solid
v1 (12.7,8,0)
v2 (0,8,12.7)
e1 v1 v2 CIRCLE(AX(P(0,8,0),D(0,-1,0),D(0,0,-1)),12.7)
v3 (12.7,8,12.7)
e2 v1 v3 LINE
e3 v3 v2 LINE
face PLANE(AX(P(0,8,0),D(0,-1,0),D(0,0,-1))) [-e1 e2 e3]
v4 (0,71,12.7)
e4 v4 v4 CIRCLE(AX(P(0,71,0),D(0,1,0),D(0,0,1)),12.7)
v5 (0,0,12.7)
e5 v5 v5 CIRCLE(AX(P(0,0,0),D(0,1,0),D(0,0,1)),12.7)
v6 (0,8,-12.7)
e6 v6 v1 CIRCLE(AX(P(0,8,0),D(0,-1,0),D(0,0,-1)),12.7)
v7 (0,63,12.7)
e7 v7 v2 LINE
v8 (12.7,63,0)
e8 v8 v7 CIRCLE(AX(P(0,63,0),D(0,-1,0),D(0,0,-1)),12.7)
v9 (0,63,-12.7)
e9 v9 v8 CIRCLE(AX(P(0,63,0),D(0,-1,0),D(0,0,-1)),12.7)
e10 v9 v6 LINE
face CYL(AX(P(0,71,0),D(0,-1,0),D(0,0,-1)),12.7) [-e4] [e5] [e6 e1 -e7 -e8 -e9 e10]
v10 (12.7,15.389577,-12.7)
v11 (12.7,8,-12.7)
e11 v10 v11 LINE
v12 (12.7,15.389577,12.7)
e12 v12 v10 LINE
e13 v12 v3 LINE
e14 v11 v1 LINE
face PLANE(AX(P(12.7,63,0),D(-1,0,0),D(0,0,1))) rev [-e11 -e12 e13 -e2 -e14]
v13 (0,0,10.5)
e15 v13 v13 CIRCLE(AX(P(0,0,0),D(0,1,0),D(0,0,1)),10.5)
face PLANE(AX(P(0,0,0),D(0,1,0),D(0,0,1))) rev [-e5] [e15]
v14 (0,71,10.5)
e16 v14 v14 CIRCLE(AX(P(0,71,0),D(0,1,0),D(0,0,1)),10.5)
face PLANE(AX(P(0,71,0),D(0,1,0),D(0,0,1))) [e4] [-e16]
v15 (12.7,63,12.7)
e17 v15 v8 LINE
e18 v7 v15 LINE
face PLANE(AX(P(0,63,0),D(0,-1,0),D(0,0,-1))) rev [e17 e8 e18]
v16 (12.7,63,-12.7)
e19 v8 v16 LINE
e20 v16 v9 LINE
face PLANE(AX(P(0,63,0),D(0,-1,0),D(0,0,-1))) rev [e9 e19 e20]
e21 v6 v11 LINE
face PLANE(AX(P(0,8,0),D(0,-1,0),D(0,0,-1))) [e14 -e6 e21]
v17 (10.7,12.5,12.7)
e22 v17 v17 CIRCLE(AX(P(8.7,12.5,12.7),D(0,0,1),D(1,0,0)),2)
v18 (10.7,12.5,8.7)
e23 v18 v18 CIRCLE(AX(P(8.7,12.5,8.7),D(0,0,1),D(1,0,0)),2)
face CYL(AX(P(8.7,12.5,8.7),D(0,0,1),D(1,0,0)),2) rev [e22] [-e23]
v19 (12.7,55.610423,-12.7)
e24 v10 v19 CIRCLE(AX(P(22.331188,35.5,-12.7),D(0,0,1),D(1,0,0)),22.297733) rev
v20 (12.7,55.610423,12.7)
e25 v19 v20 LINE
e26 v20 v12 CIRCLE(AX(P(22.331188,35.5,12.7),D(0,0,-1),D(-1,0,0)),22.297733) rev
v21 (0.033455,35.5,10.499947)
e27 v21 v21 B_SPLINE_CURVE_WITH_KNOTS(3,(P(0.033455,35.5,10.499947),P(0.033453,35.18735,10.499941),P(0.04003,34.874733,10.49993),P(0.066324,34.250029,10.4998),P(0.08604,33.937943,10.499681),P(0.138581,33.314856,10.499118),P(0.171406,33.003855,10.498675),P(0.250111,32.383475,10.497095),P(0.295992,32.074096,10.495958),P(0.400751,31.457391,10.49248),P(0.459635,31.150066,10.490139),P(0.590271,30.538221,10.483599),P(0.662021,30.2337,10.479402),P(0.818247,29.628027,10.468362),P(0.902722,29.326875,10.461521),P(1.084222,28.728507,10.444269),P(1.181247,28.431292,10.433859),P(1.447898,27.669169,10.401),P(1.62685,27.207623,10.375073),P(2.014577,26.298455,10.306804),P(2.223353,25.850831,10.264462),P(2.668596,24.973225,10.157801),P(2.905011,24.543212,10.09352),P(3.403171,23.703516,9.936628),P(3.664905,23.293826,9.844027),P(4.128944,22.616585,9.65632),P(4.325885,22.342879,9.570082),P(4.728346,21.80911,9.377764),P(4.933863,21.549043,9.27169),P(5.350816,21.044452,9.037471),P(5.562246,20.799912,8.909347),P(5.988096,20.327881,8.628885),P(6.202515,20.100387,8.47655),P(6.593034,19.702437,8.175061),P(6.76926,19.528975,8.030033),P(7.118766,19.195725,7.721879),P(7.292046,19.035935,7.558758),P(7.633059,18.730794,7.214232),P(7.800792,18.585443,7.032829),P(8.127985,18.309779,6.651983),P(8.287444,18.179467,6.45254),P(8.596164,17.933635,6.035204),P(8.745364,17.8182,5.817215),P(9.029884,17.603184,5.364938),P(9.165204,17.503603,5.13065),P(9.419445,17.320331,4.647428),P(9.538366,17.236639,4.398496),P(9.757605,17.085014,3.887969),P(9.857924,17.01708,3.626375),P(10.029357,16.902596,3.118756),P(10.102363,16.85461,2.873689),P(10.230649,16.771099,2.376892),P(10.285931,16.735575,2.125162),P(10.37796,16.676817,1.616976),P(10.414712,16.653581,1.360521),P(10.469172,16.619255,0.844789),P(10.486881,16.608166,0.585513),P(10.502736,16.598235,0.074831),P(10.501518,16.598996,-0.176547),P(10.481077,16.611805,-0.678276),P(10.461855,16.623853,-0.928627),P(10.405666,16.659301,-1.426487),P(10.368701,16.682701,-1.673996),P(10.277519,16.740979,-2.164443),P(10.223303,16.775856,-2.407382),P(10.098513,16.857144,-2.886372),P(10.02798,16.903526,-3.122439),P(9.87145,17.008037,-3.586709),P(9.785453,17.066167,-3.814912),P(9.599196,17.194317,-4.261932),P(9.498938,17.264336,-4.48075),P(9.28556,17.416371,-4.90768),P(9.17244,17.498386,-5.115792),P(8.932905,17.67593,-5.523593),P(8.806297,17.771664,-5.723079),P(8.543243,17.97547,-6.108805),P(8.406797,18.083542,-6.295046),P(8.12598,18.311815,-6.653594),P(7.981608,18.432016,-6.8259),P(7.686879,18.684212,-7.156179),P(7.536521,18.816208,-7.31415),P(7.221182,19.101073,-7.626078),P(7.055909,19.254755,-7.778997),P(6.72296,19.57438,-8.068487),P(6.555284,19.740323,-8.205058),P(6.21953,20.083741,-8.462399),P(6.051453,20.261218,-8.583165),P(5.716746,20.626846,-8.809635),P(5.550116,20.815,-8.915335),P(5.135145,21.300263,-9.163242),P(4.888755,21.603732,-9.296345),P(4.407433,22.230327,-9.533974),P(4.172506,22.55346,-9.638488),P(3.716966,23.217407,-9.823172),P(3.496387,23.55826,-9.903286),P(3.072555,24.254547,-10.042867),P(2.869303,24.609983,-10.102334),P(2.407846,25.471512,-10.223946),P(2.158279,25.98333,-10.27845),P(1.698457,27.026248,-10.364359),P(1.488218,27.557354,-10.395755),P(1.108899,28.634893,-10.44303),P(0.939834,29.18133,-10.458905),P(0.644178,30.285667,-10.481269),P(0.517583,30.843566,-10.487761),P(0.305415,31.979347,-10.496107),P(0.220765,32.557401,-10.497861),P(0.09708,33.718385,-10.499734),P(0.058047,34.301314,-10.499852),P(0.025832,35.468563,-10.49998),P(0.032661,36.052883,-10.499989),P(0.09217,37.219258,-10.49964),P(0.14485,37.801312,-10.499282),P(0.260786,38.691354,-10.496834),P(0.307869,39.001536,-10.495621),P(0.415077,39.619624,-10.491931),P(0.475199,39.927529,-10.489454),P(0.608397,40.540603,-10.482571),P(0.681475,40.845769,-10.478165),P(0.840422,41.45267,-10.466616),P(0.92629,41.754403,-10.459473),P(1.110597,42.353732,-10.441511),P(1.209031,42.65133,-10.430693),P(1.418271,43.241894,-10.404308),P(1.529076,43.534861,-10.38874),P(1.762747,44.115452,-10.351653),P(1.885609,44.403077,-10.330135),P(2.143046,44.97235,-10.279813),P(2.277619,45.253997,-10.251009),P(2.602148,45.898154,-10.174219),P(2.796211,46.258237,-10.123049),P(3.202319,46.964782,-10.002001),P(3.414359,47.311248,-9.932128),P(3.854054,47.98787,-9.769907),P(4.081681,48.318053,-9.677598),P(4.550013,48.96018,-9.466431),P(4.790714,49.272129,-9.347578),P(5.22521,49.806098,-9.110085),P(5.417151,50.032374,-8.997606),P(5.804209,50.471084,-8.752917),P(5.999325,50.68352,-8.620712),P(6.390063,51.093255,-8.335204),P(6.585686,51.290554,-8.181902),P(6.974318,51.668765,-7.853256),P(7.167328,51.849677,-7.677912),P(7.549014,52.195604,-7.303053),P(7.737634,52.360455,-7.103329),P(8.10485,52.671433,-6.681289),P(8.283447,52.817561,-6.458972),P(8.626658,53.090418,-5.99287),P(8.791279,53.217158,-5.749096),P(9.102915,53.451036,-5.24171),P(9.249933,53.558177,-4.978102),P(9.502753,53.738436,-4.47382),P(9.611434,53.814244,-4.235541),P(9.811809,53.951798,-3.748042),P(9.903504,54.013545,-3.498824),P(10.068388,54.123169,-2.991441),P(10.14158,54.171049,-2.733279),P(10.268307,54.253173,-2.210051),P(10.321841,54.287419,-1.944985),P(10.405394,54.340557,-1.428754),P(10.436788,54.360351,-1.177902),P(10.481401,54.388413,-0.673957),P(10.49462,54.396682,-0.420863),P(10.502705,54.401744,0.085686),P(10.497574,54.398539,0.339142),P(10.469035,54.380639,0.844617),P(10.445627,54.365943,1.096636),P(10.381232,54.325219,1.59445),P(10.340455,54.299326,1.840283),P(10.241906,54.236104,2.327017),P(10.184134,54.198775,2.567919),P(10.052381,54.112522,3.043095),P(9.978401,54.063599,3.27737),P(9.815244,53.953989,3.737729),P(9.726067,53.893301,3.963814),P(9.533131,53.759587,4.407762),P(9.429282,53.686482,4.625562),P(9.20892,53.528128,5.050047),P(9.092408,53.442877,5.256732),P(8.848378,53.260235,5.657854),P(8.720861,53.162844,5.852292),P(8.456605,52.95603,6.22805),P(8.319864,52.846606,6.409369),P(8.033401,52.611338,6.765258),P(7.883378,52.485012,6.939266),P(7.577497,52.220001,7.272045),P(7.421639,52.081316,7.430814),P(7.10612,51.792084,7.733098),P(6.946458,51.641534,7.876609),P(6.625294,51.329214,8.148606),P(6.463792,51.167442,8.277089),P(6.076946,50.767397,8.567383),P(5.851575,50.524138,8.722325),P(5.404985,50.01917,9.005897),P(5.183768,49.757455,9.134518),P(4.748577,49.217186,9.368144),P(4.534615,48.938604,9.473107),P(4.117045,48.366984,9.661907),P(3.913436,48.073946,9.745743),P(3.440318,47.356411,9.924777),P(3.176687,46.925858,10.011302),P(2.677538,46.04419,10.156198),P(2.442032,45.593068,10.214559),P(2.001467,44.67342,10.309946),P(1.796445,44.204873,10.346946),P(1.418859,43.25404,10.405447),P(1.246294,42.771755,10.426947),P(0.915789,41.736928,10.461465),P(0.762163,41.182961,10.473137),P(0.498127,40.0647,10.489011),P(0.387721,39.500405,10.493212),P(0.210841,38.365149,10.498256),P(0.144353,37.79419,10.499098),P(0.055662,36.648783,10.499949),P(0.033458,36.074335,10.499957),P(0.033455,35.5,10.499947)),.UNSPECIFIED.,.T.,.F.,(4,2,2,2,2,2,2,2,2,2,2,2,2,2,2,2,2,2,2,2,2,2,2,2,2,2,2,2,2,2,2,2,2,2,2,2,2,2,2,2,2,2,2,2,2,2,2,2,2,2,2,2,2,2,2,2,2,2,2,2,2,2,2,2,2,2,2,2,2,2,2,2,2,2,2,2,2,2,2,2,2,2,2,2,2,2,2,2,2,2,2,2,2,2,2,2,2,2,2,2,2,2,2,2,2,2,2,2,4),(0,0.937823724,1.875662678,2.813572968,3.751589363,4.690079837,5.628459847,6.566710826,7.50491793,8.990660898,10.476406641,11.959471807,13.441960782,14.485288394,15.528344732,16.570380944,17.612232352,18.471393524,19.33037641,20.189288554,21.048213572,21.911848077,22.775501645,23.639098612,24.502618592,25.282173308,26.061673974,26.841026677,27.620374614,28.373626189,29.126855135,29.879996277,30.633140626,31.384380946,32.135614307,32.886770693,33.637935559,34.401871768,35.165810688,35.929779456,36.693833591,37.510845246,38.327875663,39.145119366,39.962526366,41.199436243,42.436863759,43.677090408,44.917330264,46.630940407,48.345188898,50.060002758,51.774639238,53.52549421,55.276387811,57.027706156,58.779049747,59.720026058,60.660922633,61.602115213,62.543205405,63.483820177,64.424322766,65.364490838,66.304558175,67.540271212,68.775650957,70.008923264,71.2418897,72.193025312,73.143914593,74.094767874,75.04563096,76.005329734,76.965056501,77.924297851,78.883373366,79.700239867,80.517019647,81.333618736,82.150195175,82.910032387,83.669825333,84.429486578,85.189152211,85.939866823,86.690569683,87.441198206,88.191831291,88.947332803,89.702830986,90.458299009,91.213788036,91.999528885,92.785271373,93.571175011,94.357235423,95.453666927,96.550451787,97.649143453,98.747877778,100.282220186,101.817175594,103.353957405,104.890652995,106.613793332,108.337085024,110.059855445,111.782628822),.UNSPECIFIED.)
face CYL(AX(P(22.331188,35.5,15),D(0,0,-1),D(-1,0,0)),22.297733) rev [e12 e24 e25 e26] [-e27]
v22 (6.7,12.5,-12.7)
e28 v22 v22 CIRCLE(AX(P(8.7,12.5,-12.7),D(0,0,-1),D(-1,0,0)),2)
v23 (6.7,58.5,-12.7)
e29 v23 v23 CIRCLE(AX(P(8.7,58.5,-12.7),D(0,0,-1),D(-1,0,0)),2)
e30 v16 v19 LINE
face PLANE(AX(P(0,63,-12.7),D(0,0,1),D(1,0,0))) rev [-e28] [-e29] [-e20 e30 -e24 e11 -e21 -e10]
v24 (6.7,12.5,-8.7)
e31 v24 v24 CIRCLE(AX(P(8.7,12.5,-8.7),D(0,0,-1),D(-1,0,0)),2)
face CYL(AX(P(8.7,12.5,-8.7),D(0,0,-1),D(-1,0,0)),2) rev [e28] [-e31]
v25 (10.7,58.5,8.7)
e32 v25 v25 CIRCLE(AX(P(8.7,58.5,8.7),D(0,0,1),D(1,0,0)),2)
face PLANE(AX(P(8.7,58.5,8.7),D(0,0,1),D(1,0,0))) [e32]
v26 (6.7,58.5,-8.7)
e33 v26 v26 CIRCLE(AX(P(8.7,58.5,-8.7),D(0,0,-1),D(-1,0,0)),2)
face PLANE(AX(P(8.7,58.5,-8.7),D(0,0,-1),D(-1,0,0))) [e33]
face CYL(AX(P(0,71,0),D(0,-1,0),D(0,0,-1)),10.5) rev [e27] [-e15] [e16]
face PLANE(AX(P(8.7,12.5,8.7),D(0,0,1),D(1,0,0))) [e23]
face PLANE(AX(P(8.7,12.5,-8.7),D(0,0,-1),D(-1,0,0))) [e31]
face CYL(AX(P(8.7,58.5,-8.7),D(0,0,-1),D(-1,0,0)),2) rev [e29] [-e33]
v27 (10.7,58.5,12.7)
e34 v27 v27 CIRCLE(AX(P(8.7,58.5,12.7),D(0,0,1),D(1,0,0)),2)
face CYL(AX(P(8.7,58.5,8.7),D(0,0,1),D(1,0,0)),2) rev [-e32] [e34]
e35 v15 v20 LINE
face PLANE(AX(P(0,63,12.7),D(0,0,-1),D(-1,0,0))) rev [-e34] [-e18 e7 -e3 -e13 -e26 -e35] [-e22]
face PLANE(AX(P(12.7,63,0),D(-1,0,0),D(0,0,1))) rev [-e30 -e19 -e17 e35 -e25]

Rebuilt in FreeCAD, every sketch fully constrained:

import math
import FreeCAD as App
import Part
import Sketcher

V = App.Vector
Q = App.Units.Quantity

doc = App.newDocument("Part")
body = doc.addObject("PartDesign::Body", "Body")

sketch1 = body.newObject("Sketcher::SketchObject", "Sketch")
sketch1.AttachmentSupport = (doc.getObject("XZ_Plane"), [""])
sketch1.MapMode = "FlatFace"
sketch1.addGeometry([
    Part.Circle(V(0, 0, 0), V(0, 0, 1), 13),
    Part.Circle(V(0, 0, 0), V(0, 0, 1), 10),
], False)
sketch1.addConstraint([
    Sketcher.Constraint("Coincident", 0, 3, -1, 1),
    Sketcher.Constraint("Coincident", 1, 3, -1, 1),
    Sketcher.Constraint("Diameter", 1, Q("21 mm")),
    Sketcher.Constraint("Diameter", 0, Q("25.4 mm")),
])
pad1 = body.newObject("PartDesign::Pad", "Pad")
pad1.Profile = sketch1
pad1.Length = 71
pad1.Reversed = True

sketch2 = body.newObject("Sketcher::SketchObject", "Sketch001")
sketch2.AttachmentSupport = (doc.getObject("XZ_Plane"), [""])
sketch2.MapMode = "FlatFace"
sketch2.addGeometry([
    Part.LineSegment(V(13, 13, 0), V(0, 13, 0)),
    Part.ArcOfCircle(Part.Circle(V(0, 0, 0), V(0, 0, 1), 13), math.radians(0), math.radians(90)),
    Part.LineSegment(V(13, 0, 0), V(13, 13, 0)),
    Part.LineSegment(V(13, -13, 0), V(13, 0, 0)),
    Part.ArcOfCircle(Part.Circle(V(0, 0, 0), V(0, 0, 1), 13), math.radians(-90), math.radians(0)),
    Part.LineSegment(V(0, -13, 0), V(13, -13, 0)),
], False)
sketch2.addConstraint([
    Sketcher.Constraint("Tangent", 0, 2, 1, 2),
    Sketcher.Constraint("Tangent", 1, 1, 2, 1),
    Sketcher.Constraint("Coincident", 2, 2, 0, 1),
    Sketcher.Constraint("Tangent", 3, 2, 4, 2),
    Sketcher.Constraint("Tangent", 4, 1, 5, 1),
    Sketcher.Constraint("Coincident", 5, 2, 3, 1),
    Sketcher.Constraint("Horizontal", 0),
    Sketcher.Constraint("Vertical", 2),
    Sketcher.Constraint("Vertical", 3),
    Sketcher.Constraint("Horizontal", 5),
    Sketcher.Constraint("Coincident", 1, 3, -1, 1),
    Sketcher.Constraint("Coincident", 4, 3, -1, 1),
    Sketcher.Constraint("Equal", 1, 4),
    Sketcher.Constraint("Radius", 1, Q("12.7 mm")),
])
pad2 = body.newObject("PartDesign::Pad", "Pad001")
pad2.Profile = sketch2
pad2.Length = 63
pad2.Reversed = True

sketch3 = body.newObject("Sketcher::SketchObject", "Sketch002")
sketch3.AttachmentSupport = (doc.getObject("XZ_Plane"), [""])
sketch3.MapMode = "FlatFace"
sketch3.addGeometry([
    Part.LineSegment(V(13, 13, 0), V(0, 13, 0)),
    Part.ArcOfCircle(Part.Circle(V(0, 0, 0), V(0, 0, 1), 13), math.radians(0), math.radians(90)),
    Part.LineSegment(V(13, 0, 0), V(13, 13, 0)),
    Part.LineSegment(V(13, -13, 0), V(13, 0, 0)),
    Part.ArcOfCircle(Part.Circle(V(0, 0, 0), V(0, 0, 1), 13), math.radians(-90), math.radians(0)),
    Part.LineSegment(V(0, -13, 0), V(13, -13, 0)),
], False)
sketch3.addConstraint([
    Sketcher.Constraint("Tangent", 0, 2, 1, 2),
    Sketcher.Constraint("Tangent", 1, 1, 2, 1),
    Sketcher.Constraint("Coincident", 2, 2, 0, 1),
    Sketcher.Constraint("Tangent", 3, 2, 4, 2),
    Sketcher.Constraint("Tangent", 4, 1, 5, 1),
    Sketcher.Constraint("Coincident", 5, 2, 3, 1),
    Sketcher.Constraint("Horizontal", 0),
    Sketcher.Constraint("Vertical", 2),
    Sketcher.Constraint("Vertical", 3),
    Sketcher.Constraint("Horizontal", 5),
    Sketcher.Constraint("Coincident", 1, 3, -1, 1),
    Sketcher.Constraint("Coincident", 4, 3, -1, 1),
    Sketcher.Constraint("Equal", 1, 4),
    Sketcher.Constraint("Radius", 1, Q("12.7 mm")),
])
pocket1 = body.newObject("PartDesign::Pocket", "Pocket")
pocket1.Profile = sketch3
pocket1.Length = 8

sketch4 = body.newObject("Sketcher::SketchObject", "Sketch003")
sketch4.AttachmentSupport = (doc.getObject("XY_Plane"), [""])
sketch4.MapMode = "FlatFace"
sketch4.addGeometry(Part.Circle(V(22, 36, 0), V(0, 0, 1), 22), False)
sketch4.addConstraint([
    Sketcher.Constraint("DistanceY", -1, 1, 0, 3, Q("35.5 mm")),
    Sketcher.Constraint("Diameter", 0, Q("44.595466 mm")),
    Sketcher.Constraint("DistanceX", -1, 1, 0, 3, Q("22.331188 mm")),
])
pocket2 = body.newObject("PartDesign::Pocket", "Pocket001")
pocket2.Profile = sketch4
pocket2.Type = "ThroughAll"
pocket2.Midplane = True

sketch5 = body.newObject("Sketcher::SketchObject", "Sketch004")
sketch5.AttachmentSupport = (doc.getObject("XY_Plane"), [""])
sketch5.MapMode = "FlatFace"
sketch5.AttachmentOffset = App.Placement(V(0, 0, -12.7), App.Rotation())
sketch5.addGeometry([
    Part.Circle(V(8.7, 58.5, 0), V(0, 0, 1), 2),
    Part.Circle(V(8.7, 12.5, 0), V(0, 0, 1), 2),
], False)
sketch5.addConstraint([
    Sketcher.Constraint("Equal", 0, 1),
    Sketcher.Constraint("Vertical", 0, 3, 1, 3),
    Sketcher.Constraint("Diameter", 0, Q("4 mm")),
    Sketcher.Constraint("DistanceY", 1, 3, 0, 3, Q("46 mm")),
    Sketcher.Constraint("DistanceX", -1, 1, 0, 3, Q("8.7 mm")),
    Sketcher.Constraint("DistanceY", -1, 1, 0, 3, Q("58.5 mm")),
])
pocket3 = body.newObject("PartDesign::Pocket", "Pocket002")
pocket3.Profile = sketch5
pocket3.Length = 4
pocket3.Reversed = True

sketch6 = body.newObject("Sketcher::SketchObject", "Sketch005")
sketch6.AttachmentSupport = (doc.getObject("XY_Plane"), [""])
sketch6.MapMode = "FlatFace"
sketch6.AttachmentOffset = App.Placement(V(0, 0, 8.7), App.Rotation())
sketch6.addGeometry([
    Part.Circle(V(8.7, 58.5, 0), V(0, 0, 1), 2),
    Part.Circle(V(8.7, 12.5, 0), V(0, 0, 1), 2),
], False)
sketch6.addConstraint([
    Sketcher.Constraint("Equal", 0, 1),
    Sketcher.Constraint("Vertical", 0, 3, 1, 3),
    Sketcher.Constraint("Diameter", 0, Q("4 mm")),
    Sketcher.Constraint("DistanceY", 1, 3, 0, 3, Q("46 mm")),
    Sketcher.Constraint("DistanceX", -1, 1, 0, 3, Q("8.7 mm")),
    Sketcher.Constraint("DistanceY", -1, 1, 0, 3, Q("58.5 mm")),
])
pocket4 = body.newObject("PartDesign::Pocket", "Pocket003")
pocket4.Profile = sketch6
pocket4.Length = 4
pocket4.Reversed = True

doc.recompute()
